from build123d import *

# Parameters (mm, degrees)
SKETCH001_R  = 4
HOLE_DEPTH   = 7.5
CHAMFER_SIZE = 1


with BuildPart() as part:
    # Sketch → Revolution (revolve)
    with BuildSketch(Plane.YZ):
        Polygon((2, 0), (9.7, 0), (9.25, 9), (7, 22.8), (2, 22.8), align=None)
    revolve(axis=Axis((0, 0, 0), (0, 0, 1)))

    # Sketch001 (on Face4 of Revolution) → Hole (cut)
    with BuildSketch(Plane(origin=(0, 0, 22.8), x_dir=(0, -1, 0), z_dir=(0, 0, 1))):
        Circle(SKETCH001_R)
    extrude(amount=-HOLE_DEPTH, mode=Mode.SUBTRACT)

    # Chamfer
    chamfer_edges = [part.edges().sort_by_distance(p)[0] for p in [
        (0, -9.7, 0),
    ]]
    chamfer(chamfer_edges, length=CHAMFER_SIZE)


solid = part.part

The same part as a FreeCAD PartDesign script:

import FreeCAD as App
import Part
import Sketcher


def edges_at(feature, points):
    """Names of the edges that pass closest to the given points."""
    edges = feature.Shape.Edges
    near = lambda p: min(range(len(edges)), key=lambda i: edges[i].distToShape(Part.Vertex(*p))[0])
    return sorted({f"Edge{near(p) + 1}" for p in points})

doc = App.newDocument("Part")
body = doc.addObject("PartDesign::Body", "Body")

sketch1 = doc.addObject("Sketcher::SketchObject", "Sketch")
body.addObject(sketch1)
sketch1.AttachmentSupport = (doc.YZ_Plane, [""])
sketch1.MapMode = "FlatFace"
sketch1.addGeometry([
    Part.LineSegment(App.Vector(2, 0, 0), App.Vector(10, 0, 0)),
    Part.LineSegment(App.Vector(10, 0, 0), App.Vector(9, 9, 0)),
    Part.LineSegment(App.Vector(9, 9, 0), App.Vector(7, 23, 0)),
    Part.LineSegment(App.Vector(7, 23, 0), App.Vector(2, 23, 0)),
    Part.LineSegment(App.Vector(2, 23, 0), App.Vector(2, 0, 0)),
], False)
sketch1.addConstraint([
    Sketcher.Constraint("Coincident", 0, 2, 1, 1),
    Sketcher.Constraint("Coincident", 1, 2, 2, 1),
    Sketcher.Constraint("Coincident", 2, 2, 3, 1),
    Sketcher.Constraint("Coincident", 3, 2, 4, 1),
    Sketcher.Constraint("Coincident", 4, 2, 0, 1),
    Sketcher.Constraint("Horizontal", 0),
    Sketcher.Constraint("Horizontal", 3),
    Sketcher.Constraint("Vertical", 4),
    Sketcher.Constraint("PointOnObject", 0, 2, -1),
    Sketcher.Constraint("DistanceX", 3, 2, 3, 1, 5.0),
    Sketcher.Constraint("DistanceX", 0, 1, 0, 2, 7.7),
    Sketcher.Constraint("DistanceY", 4, 2, 4, 1, 22.8),
    Sketcher.Constraint("DistanceY", -1, 1, 1, 2, 9.0),
    Sketcher.Constraint("DistanceX", -1, 1, 2, 2, 7.0),
    Sketcher.Constraint("DistanceX", -1, 1, 1, 2, 9.25),
])
revolution = doc.addObject("PartDesign::Revolution", "Revolution")
body.addObject(revolution)
revolution.Profile = sketch1
revolution.ReferenceAxis = (sketch1, ["V_Axis"])
revolution.Angle = 360

sketch2 = doc.addObject("Sketcher::SketchObject", "Sketch001")
body.addObject(sketch2)
sketch2.AttachmentSupport = (doc.XY_Plane, [""])
sketch2.MapMode = "FlatFace"
sketch2.AttachmentOffset = App.Placement(App.Vector(0, 0, 22.8), App.Rotation())
sketch2.addGeometry(Part.Circle(App.Vector(0, 0, 0), App.Vector(0, 0, 1), 4), False)
sketch2.addConstraint([
    Sketcher.Constraint("Coincident", 0, 3, -1, 1),
    Sketcher.Constraint("Diameter", 0, 8.0),
])
pocket1 = doc.addObject("PartDesign::Pocket", "Pocket")
body.addObject(pocket1)
pocket1.Profile = sketch2
pocket1.Length = 7.5
doc.recompute()

chamfer = doc.addObject("PartDesign::Chamfer", "Chamfer")
body.addObject(chamfer)
chamfer.Base = (pocket1, edges_at(pocket1, [(0, -9.7, 0)]))
chamfer.Size = 1

doc.recompute()
